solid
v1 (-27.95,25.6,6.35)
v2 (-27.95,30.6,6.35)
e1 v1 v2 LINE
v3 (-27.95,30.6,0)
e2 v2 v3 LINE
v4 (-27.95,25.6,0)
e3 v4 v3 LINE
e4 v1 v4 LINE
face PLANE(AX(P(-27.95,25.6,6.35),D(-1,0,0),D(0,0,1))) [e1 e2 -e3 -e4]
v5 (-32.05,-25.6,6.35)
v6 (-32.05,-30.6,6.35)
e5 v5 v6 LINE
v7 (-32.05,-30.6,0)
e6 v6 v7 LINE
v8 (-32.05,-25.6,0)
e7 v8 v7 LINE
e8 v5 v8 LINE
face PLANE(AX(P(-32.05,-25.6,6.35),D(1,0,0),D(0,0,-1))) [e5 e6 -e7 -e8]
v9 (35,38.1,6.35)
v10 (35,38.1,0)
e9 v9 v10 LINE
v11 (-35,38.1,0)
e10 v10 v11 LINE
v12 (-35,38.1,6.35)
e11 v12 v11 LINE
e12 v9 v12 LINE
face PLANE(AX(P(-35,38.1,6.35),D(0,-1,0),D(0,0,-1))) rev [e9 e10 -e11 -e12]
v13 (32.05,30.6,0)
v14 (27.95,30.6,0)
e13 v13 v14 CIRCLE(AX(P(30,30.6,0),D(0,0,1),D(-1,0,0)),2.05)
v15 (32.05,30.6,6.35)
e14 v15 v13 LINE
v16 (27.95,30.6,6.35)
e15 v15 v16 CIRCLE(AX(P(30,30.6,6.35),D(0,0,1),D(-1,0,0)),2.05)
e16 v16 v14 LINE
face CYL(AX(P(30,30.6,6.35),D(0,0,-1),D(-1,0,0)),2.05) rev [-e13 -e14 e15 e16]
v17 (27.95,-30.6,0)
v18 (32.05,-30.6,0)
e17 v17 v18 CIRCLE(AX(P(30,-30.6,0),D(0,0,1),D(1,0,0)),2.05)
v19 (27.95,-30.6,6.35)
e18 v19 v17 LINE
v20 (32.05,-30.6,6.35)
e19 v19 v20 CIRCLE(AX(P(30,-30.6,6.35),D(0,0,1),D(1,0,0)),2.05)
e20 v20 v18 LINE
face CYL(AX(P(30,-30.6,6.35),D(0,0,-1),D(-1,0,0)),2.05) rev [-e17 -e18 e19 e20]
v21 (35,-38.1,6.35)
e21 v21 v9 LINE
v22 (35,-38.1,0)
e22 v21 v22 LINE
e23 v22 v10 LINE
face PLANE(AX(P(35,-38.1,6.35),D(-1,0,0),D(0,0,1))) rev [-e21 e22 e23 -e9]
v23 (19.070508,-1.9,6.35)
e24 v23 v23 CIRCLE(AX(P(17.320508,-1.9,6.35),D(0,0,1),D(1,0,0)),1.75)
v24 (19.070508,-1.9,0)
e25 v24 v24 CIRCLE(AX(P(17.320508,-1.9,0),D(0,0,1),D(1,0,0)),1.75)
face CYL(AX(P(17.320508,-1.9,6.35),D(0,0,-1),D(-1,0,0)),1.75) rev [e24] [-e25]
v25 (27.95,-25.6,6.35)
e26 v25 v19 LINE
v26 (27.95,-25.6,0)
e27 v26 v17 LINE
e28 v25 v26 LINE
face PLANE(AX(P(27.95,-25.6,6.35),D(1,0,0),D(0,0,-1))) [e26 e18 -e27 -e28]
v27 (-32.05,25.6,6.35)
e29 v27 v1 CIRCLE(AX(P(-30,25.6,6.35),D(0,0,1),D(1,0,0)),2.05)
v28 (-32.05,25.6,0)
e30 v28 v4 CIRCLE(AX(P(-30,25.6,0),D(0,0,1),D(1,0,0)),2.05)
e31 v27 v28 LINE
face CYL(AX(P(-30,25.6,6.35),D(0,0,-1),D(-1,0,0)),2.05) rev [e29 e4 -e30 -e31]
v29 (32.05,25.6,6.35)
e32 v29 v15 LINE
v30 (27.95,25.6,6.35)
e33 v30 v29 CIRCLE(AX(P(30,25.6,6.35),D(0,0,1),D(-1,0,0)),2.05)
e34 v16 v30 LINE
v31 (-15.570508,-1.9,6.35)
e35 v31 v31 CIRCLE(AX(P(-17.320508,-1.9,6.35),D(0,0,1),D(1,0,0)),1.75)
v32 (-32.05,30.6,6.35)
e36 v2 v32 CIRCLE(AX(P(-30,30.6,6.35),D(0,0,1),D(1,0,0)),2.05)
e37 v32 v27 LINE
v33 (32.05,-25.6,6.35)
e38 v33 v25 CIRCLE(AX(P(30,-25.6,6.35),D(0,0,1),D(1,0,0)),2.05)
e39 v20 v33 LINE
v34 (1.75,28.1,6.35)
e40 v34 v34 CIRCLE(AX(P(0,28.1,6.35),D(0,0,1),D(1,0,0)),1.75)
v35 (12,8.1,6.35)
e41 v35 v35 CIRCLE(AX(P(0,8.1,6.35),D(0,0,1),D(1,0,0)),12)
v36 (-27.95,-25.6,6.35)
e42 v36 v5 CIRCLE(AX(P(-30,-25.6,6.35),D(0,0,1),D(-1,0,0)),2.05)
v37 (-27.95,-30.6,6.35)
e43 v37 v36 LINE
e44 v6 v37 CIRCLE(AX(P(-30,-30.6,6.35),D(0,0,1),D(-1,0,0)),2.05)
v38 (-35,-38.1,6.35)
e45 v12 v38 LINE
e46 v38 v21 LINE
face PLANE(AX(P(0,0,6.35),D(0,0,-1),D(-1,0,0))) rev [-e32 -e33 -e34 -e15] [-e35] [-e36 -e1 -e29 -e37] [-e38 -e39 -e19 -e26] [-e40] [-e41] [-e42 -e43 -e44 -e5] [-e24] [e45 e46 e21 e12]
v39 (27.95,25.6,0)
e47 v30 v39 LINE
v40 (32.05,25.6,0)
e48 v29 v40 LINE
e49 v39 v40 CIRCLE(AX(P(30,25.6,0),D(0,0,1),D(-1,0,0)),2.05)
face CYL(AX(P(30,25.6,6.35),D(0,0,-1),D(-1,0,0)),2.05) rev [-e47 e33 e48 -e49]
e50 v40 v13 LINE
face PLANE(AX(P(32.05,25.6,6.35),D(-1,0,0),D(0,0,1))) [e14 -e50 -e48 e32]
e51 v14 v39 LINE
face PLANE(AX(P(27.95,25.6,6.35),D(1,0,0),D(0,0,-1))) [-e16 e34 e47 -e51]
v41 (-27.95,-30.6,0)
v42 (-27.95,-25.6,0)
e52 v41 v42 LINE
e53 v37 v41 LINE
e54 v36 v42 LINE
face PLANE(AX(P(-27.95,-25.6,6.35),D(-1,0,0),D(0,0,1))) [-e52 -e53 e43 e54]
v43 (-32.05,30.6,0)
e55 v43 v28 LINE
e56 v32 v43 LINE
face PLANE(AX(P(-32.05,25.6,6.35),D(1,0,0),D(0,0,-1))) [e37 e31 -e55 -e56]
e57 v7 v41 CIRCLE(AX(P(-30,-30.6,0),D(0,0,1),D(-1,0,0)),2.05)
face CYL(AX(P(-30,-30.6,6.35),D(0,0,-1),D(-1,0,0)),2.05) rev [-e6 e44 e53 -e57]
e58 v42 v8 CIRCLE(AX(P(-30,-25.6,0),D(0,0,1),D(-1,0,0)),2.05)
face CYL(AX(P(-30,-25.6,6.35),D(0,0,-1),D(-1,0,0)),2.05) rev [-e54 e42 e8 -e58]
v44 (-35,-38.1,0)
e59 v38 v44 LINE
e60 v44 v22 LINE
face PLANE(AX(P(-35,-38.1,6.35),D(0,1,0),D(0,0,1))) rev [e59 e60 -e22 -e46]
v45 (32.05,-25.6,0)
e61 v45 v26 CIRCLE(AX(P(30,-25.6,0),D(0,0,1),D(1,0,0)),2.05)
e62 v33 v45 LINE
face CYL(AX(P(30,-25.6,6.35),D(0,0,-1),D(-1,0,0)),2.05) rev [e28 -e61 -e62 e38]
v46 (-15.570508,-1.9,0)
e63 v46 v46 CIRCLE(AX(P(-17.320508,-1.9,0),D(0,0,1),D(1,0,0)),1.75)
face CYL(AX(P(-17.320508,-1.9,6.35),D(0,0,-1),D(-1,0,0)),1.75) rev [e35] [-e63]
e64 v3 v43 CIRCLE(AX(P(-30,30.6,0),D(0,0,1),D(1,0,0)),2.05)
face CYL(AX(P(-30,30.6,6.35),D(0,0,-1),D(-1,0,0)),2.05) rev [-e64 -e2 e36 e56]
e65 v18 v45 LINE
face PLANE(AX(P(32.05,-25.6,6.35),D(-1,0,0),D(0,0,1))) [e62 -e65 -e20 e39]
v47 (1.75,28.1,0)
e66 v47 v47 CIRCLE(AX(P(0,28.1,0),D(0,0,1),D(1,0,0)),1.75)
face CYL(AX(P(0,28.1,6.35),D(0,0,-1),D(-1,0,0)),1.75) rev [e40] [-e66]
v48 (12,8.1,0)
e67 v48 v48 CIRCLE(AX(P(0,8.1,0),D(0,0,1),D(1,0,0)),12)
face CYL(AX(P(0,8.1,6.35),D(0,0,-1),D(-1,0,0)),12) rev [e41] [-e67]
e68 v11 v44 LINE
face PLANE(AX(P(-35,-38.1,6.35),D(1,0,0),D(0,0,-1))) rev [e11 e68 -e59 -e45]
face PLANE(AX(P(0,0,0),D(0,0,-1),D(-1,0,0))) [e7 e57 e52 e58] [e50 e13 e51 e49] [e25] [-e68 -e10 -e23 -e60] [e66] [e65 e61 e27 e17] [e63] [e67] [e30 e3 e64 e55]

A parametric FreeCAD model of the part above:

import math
import FreeCAD as App
import Part
import Sketcher

V = App.Vector

doc = App.newDocument("Part")
body = doc.addObject("PartDesign::Body", "Body")

# Sketch on XY plane
sketch1 = doc.addObject("Sketcher::SketchObject", "Sketch")
body.addObject(sketch1)
sketch1.AttachmentSupport = (doc.XY_Plane, [""])
sketch1.MapMode = "FlatFace"
sketch1.addGeometry([
    Part.LineSegment(V(-35, 38.1, 0), V(-35, -38.1, 0)),  # 0
    Part.LineSegment(V(-35, -38.1, 0), V(35, -38.1, 0)),  # 1
    Part.LineSegment(V(35, -38.1, 0), V(35, 38.1, 0)),  # 2
    Part.LineSegment(V(35, 38.1, 0), V(-35, 38.1, 0)),  # 3
    Part.LineSegment(V(-32.05, -30.6, 0), V(-32.05, -25.6, 0)),  # 4
    Part.ArcOfCircle(Part.Circle(V(-30, -25.6, 0), V(0, 0, 1), 2.05), math.radians(0), math.radians(180)),  # 5
    Part.LineSegment(V(-27.95, -25.6, 0), V(-27.95, -30.6, 0)),  # 6
    Part.ArcOfCircle(Part.Circle(V(-30, -30.6, 0), V(0, 0, 1), 2.05), math.radians(180), math.radians(360)),  # 7
    Part.Circle(V(-17.320508, -1.9, 0), V(0, 0, 1), 1.75),  # 8
    Part.ArcOfCircle(Part.Circle(V(30, -25.6, 0), V(0, 0, 1), 2.05), math.radians(0), math.radians(180)),  # 9
    Part.LineSegment(V(32.05, -25.6, 0), V(32.05, -30.6, 0)),  # 10
    Part.ArcOfCircle(Part.Circle(V(30, -30.6, 0), V(0, 0, 1), 2.05), math.radians(180), math.radians(360)),  # 11
    Part.LineSegment(V(27.95, -30.6, 0), V(27.95, -25.6, 0)),  # 12
    Part.Circle(V(17.320508, -1.9, 0), V(0, 0, 1), 1.75),  # 13
    Part.ArcOfCircle(Part.Circle(V(-30, 25.6, 0), V(0, 0, 1), 2.05), math.radians(180), math.radians(360)),  # 14
    Part.LineSegment(V(-32.05, 25.6, 0), V(-32.05, 30.6, 0)),  # 15
    Part.ArcOfCircle(Part.Circle(V(-30, 30.6, 0), V(0, 0, 1), 2.05), math.radians(0), math.radians(180)),  # 16
    Part.LineSegment(V(-27.95, 30.6, 0), V(-27.95, 25.6, 0)),  # 17
    Part.Circle(V(0, 8.1, 0), V(0, 0, 1), 12),  # 18
    Part.Circle(V(0, 28.1, 0), V(0, 0, 1), 1.75),  # 19
    Part.LineSegment(V(32.05, 30.6, 0), V(32.05, 25.6, 0)),  # 20
    Part.ArcOfCircle(Part.Circle(V(30, 25.6, 0), V(0, 0, 1), 2.05), math.radians(180), math.radians(360)),  # 21
    Part.LineSegment(V(27.95, 25.6, 0), V(27.95, 30.6, 0)),  # 22
    Part.ArcOfCircle(Part.Circle(V(30, 30.6, 0), V(0, 0, 1), 2.05), math.radians(0), math.radians(180)),  # 23
], False)
sketch1.addConstraint([
    Sketcher.Constraint("Coincident", 0, 2, 1, 1),
    Sketcher.Constraint("Coincident", 1, 2, 2, 1),
    Sketcher.Constraint("Coincident", 2, 2, 3, 1),
    Sketcher.Constraint("Coincident", 3, 2, 0, 1),
    Sketcher.Constraint("Tangent", 4, 2, 5, 2),
    Sketcher.Constraint("Tangent", 5, 1, 6, 1),
    Sketcher.Constraint("Tangent", 6, 2, 7, 2),
    Sketcher.Constraint("Tangent", 7, 1, 4, 1),
    Sketcher.Constraint("Tangent", 9, 1, 10, 1),
    Sketcher.Constraint("Tangent", 10, 2, 11, 2),
    Sketcher.Constraint("Tangent", 11, 1, 12, 1),
    Sketcher.Constraint("Tangent", 12, 2, 9, 2),
    Sketcher.Constraint("Tangent", 14, 1, 15, 1),
    Sketcher.Constraint("Tangent", 15, 2, 16, 2),
    Sketcher.Constraint("Tangent", 16, 1, 17, 1),
    Sketcher.Constraint("Tangent", 17, 2, 14, 2),
    Sketcher.Constraint("Tangent", 20, 2, 21, 2),
    Sketcher.Constraint("Tangent", 21, 1, 22, 1),
    Sketcher.Constraint("Tangent", 22, 2, 23, 2),
    Sketcher.Constraint("Tangent", 23, 1, 20, 1),
    Sketcher.Constraint("Vertical", 0),
    Sketcher.Constraint("Horizontal", 1),
    Sketcher.Constraint("Vertical", 2),
    Sketcher.Constraint("Horizontal", 3),
    Sketcher.Constraint("Vertical", 4),
    Sketcher.Constraint("Vertical", 6),
    Sketcher.Constraint("Vertical", 10),
    Sketcher.Constraint("Vertical", 12),
    Sketcher.Constraint("Vertical", 15),
    Sketcher.Constraint("Vertical", 17),
    Sketcher.Constraint("Vertical", 20),
    Sketcher.Constraint("Vertical", 22),
    Sketcher.Constraint("Equal", 7, 9),
    Sketcher.Constraint("Equal", 8, 13),
    Sketcher.Constraint("Equal", 11, 14),
    Sketcher.Constraint("Equal", 13, 19),
    Sketcher.Constraint("Equal", 16, 21),
    Sketcher.Constraint("Symmetric", 9, 3, 14, 3, -1, 1),
    Sketcher.Constraint("Symmetric", 5, 3, 21, 3, -1, 1),
    Sketcher.Constraint("Symmetric", 0, 2, 2, 2, -1, 1),
    Sketcher.Constraint("Symmetric", 5, 3, 9, 3, -2),
    Sketcher.Constraint("Symmetric", 8, 3, 13, 3, -2),
    Sketcher.Constraint("PointOnObject", 18, 3, -2),
    Sketcher.Constraint("PointOnObject", 19, 3, -2),
    Sketcher.Constraint("Horizontal", 7, 3, 11, 3),
    Sketcher.Constraint("Horizontal", 16, 3, 23, 3),
    Sketcher.Constraint("Equal", 12, 15),
    Sketcher.Constraint("Diameter", 18, 24.0),
    Sketcher.Constraint("Diameter", 8, 3.5),
    Sketcher.Constraint("DistanceX", 1, 1, 1, 2, 70.0),
    Sketcher.Constraint("DistanceY", 4, 1, 4, 2, 5.0),
    Sketcher.Constraint("Radius", 5, 2.05),
    Sketcher.Constraint("DistanceY", 0, 2, 0, 1, 76.2),
    Sketcher.Constraint("DistanceX", 5, 3, -1, 1, 30.0),
    Sketcher.Constraint("DistanceY", 8, 3, 18, 3, 10.0),
    Sketcher.Constraint("DistanceY", 18, 3, 19, 3, 20.0),
    Sketcher.Constraint("DistanceY", 19, 3, 2, 2, 10.0),
    Sketcher.Constraint("DistanceY", 5, 3, -1, 1, 25.6),
    Sketcher.Constraint("DistanceX", 8, 3, -1, 1, 17.320508),
])
pad1 = doc.addObject("PartDesign::Pad", "Pad")
body.addObject(pad1)
pad1.Profile = sketch1
pad1.Length = 6.35

doc.recompute()
